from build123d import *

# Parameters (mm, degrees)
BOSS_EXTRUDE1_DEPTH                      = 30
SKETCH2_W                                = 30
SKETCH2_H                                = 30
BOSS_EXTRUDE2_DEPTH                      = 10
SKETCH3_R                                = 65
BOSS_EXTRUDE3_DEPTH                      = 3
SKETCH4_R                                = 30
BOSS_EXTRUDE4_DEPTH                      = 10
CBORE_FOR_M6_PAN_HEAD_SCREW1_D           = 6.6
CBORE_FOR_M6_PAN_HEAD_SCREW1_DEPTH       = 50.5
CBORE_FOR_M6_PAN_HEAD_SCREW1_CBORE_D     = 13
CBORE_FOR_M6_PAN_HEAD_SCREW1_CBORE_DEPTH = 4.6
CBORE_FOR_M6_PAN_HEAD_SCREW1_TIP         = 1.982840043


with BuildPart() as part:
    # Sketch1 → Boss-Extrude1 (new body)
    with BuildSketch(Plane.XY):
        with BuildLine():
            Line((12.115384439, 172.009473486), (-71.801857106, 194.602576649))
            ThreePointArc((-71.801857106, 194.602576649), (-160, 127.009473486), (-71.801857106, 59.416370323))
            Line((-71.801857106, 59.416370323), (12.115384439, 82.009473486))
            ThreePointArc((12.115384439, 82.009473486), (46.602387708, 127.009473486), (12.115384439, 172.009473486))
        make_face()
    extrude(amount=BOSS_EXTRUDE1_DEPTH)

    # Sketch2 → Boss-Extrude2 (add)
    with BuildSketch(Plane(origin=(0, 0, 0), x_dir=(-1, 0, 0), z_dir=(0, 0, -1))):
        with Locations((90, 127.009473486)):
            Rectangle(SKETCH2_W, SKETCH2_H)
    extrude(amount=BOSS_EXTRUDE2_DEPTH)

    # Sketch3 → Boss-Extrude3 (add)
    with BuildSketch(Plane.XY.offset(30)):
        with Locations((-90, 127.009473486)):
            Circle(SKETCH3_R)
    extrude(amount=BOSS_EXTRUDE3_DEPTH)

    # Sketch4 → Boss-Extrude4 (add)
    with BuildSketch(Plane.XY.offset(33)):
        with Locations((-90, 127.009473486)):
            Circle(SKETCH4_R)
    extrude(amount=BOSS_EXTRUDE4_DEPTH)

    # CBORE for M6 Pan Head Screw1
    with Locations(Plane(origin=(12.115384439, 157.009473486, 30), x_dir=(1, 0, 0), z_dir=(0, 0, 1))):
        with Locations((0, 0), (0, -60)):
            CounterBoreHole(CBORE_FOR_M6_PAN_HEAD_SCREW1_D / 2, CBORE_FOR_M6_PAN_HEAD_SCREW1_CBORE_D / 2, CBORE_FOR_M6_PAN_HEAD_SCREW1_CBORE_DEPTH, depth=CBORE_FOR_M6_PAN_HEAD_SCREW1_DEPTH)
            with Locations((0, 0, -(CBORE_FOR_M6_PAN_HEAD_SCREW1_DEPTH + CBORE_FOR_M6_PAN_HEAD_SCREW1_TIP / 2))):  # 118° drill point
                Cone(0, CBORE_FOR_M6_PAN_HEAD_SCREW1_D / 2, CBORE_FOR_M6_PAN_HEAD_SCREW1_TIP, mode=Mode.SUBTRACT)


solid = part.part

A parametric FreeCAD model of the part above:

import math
import FreeCAD as App
import Part
import Sketcher
from FreeCAD import Vector
Q = App.Units.Quantity

doc = App.newDocument("Part")
body = doc.addObject("PartDesign::Body", "Body")

# Sketch on XY plane
sketch1 = doc.addObject("Sketcher::SketchObject", "Sketch")
body.addObject(sketch1)
sketch1.AttachmentSupport = (doc.XY_Plane, [""])
sketch1.MapMode = "FlatFace"
sketch1.addGeometry([
    Part.LineSegment(Vector(12, 172, 0), Vector(-72, 195, 0)),
    Part.ArcOfCircle(Part.Circle(Vector(-90, 127, 0), Vector(0, 0, 1), 70), math.radians(75), math.radians(285)),
    Part.LineSegment(Vector(-72, 59, 0), Vector(12, 82, 0)),
    Part.ArcOfCircle(Part.Circle(Vector(0, 127, 0), Vector(0, 0, 1), 47), math.radians(-75), math.radians(75)),
], False)
sketch1.addConstraint([
    Sketcher.Constraint("Tangent", 0, 2, 1, 1),
    Sketcher.Constraint("Tangent", 1, 2, 2, 1),
    Sketcher.Constraint("Tangent", 2, 2, 3, 1),
    Sketcher.Constraint("Tangent", 3, 2, 0, 1),
    Sketcher.Constraint("PointOnObject", 3, 3, -2),
    Sketcher.Constraint("Horizontal", 1, 3, 3, 3),
    Sketcher.Constraint("Radius", 1, Q("70 mm")),
    Sketcher.Constraint("DistanceX", 1, 3, -1, 1, Q("90 mm")),
    Sketcher.Constraint("DistanceY", 2, 2, 3, 3, Q("45 mm")),
    Sketcher.Constraint("DistanceY", -1, 1, 1, 2, Q("59.41637 mm")),
])
pad1 = doc.addObject("PartDesign::Pad", "Pad")
body.addObject(pad1)
pad1.Profile = sketch1
pad1.Length = 30

# Sketch on XY plane
sketch2 = doc.addObject("Sketcher::SketchObject", "Sketch001")
body.addObject(sketch2)
sketch2.AttachmentSupport = (doc.XY_Plane, [""])
sketch2.MapMode = "FlatFace"
sketch2.addGeometry([
    Part.LineSegment(Vector(-75, 142, 0), Vector(-75, 112, 0)),
    Part.LineSegment(Vector(-75, 112, 0), Vector(-105, 112, 0)),
    Part.LineSegment(Vector(-105, 112, 0), Vector(-105, 142, 0)),
    Part.LineSegment(Vector(-105, 142, 0), Vector(-75, 142, 0)),
], False)
sketch2.addConstraint([
    Sketcher.Constraint("Coincident", 0, 2, 1, 1),
    Sketcher.Constraint("Coincident", 1, 2, 2, 1),
    Sketcher.Constraint("Coincident", 2, 2, 3, 1),
    Sketcher.Constraint("Coincident", 3, 2, 0, 1),
    Sketcher.Constraint("Vertical", 0),
    Sketcher.Constraint("Horizontal", 1),
    Sketcher.Constraint("Vertical", 2),
    Sketcher.Constraint("Horizontal", 3),
    Sketcher.Constraint("Equal", 3, 0),
    Sketcher.Constraint("DistanceX", 1, 2, 1, 1, Q("30 mm")),
    Sketcher.Constraint("DistanceX", 0, 2, -1, 1, Q("75 mm")),
    Sketcher.Constraint("DistanceY", -1, 1, 0, 2, Q("112.009473 mm")),
])
pad2 = doc.addObject("PartDesign::Pad", "Pad001")
body.addObject(pad2)
pad2.Profile = sketch2
pad2.Length = 10
pad2.Reversed = True

# Sketch on XY plane
sketch3 = doc.addObject("Sketcher::SketchObject", "Sketch002")
body.addObject(sketch3)
sketch3.AttachmentSupport = (doc.XY_Plane, [""])
sketch3.MapMode = "FlatFace"
sketch3.AttachmentOffset = App.Placement(Vector(0, 0, 30), App.Rotation())
sketch3.addGeometry(Part.Circle(Vector(-90, 127, 0), Vector(0, 0, 1), 65), False)
sketch3.addConstraint([
    Sketcher.Constraint("Diameter", 0, Q("130 mm")),
    Sketcher.Constraint("DistanceX", 0, 3, -1, 1, Q("90 mm")),
    Sketcher.Constraint("DistanceY", -1, 1, 0, 3, Q("127.009473 mm")),
])
pad3 = doc.addObject("PartDesign::Pad", "Pad002")
body.addObject(pad3)
pad3.Profile = sketch3
pad3.Length = 3

# Sketch on XY plane
sketch4 = doc.addObject("Sketcher::SketchObject", "Sketch003")
body.addObject(sketch4)
sketch4.AttachmentSupport = (doc.XY_Plane, [""])
sketch4.MapMode = "FlatFace"
sketch4.AttachmentOffset = App.Placement(Vector(0, 0, 33), App.Rotation())
sketch4.addGeometry(Part.Circle(Vector(-90, 127, 0), Vector(0, 0, 1), 30), False)
sketch4.addConstraint([
    Sketcher.Constraint("Diameter", 0, Q("60 mm")),
    Sketcher.Constraint("DistanceX", 0, 3, -1, 1, Q("90 mm")),
    Sketcher.Constraint("DistanceY", -1, 1, 0, 3, Q("127.009473 mm")),
])
pad4 = doc.addObject("PartDesign::Pad", "Pad003")
body.addObject(pad4)
pad4.Profile = sketch4
pad4.Length = 10

# Sketch on XY plane
sketch5 = doc.addObject("Sketcher::SketchObject", "Sketch004")
body.addObject(sketch5)
sketch5.AttachmentSupport = (doc.XY_Plane, [""])
sketch5.MapMode = "FlatFace"
sketch5.AttachmentOffset = App.Placement(Vector(0, 0, 30), App.Rotation())
sketch5.addGeometry([
    Part.Circle(Vector(12.1, 157, 0), Vector(0, 0, 1), 3.3),
    Part.Circle(Vector(12.1, 97, 0), Vector(0, 0, 1), 3.3),
], False)
sketch5.addConstraint([
    Sketcher.Constraint("Equal", 0, 1),
    Sketcher.Constraint("Vertical", 0, 3, 1, 3),
    Sketcher.Constraint("Diameter", 0, Q("6.6 mm")),
    Sketcher.Constraint("DistanceY", 1, 3, 0, 3, Q("60 mm")),
    Sketcher.Constraint("DistanceX", -1, 1, 0, 3, Q("12.115384 mm")),
    Sketcher.Constraint("DistanceY", -1, 1, 0, 3, Q("157.009473 mm")),
])
doc.recompute()
hole = doc.addObject("PartDesign::Hole", "Hole")
body.addObject(hole)
hole.Profile = sketch5
hole.ThreadType = "None"
hole.Diameter = 6.6
hole.DepthType = "Dimension"
hole.Depth = 50.5
hole.DrillPoint = "Angled"
hole.DrillPointAngle = 118
hole.HoleCutType = "Counterbore"
hole.HoleCutDiameter = 13
hole.HoleCutDepth = 4.6

doc.recompute()
